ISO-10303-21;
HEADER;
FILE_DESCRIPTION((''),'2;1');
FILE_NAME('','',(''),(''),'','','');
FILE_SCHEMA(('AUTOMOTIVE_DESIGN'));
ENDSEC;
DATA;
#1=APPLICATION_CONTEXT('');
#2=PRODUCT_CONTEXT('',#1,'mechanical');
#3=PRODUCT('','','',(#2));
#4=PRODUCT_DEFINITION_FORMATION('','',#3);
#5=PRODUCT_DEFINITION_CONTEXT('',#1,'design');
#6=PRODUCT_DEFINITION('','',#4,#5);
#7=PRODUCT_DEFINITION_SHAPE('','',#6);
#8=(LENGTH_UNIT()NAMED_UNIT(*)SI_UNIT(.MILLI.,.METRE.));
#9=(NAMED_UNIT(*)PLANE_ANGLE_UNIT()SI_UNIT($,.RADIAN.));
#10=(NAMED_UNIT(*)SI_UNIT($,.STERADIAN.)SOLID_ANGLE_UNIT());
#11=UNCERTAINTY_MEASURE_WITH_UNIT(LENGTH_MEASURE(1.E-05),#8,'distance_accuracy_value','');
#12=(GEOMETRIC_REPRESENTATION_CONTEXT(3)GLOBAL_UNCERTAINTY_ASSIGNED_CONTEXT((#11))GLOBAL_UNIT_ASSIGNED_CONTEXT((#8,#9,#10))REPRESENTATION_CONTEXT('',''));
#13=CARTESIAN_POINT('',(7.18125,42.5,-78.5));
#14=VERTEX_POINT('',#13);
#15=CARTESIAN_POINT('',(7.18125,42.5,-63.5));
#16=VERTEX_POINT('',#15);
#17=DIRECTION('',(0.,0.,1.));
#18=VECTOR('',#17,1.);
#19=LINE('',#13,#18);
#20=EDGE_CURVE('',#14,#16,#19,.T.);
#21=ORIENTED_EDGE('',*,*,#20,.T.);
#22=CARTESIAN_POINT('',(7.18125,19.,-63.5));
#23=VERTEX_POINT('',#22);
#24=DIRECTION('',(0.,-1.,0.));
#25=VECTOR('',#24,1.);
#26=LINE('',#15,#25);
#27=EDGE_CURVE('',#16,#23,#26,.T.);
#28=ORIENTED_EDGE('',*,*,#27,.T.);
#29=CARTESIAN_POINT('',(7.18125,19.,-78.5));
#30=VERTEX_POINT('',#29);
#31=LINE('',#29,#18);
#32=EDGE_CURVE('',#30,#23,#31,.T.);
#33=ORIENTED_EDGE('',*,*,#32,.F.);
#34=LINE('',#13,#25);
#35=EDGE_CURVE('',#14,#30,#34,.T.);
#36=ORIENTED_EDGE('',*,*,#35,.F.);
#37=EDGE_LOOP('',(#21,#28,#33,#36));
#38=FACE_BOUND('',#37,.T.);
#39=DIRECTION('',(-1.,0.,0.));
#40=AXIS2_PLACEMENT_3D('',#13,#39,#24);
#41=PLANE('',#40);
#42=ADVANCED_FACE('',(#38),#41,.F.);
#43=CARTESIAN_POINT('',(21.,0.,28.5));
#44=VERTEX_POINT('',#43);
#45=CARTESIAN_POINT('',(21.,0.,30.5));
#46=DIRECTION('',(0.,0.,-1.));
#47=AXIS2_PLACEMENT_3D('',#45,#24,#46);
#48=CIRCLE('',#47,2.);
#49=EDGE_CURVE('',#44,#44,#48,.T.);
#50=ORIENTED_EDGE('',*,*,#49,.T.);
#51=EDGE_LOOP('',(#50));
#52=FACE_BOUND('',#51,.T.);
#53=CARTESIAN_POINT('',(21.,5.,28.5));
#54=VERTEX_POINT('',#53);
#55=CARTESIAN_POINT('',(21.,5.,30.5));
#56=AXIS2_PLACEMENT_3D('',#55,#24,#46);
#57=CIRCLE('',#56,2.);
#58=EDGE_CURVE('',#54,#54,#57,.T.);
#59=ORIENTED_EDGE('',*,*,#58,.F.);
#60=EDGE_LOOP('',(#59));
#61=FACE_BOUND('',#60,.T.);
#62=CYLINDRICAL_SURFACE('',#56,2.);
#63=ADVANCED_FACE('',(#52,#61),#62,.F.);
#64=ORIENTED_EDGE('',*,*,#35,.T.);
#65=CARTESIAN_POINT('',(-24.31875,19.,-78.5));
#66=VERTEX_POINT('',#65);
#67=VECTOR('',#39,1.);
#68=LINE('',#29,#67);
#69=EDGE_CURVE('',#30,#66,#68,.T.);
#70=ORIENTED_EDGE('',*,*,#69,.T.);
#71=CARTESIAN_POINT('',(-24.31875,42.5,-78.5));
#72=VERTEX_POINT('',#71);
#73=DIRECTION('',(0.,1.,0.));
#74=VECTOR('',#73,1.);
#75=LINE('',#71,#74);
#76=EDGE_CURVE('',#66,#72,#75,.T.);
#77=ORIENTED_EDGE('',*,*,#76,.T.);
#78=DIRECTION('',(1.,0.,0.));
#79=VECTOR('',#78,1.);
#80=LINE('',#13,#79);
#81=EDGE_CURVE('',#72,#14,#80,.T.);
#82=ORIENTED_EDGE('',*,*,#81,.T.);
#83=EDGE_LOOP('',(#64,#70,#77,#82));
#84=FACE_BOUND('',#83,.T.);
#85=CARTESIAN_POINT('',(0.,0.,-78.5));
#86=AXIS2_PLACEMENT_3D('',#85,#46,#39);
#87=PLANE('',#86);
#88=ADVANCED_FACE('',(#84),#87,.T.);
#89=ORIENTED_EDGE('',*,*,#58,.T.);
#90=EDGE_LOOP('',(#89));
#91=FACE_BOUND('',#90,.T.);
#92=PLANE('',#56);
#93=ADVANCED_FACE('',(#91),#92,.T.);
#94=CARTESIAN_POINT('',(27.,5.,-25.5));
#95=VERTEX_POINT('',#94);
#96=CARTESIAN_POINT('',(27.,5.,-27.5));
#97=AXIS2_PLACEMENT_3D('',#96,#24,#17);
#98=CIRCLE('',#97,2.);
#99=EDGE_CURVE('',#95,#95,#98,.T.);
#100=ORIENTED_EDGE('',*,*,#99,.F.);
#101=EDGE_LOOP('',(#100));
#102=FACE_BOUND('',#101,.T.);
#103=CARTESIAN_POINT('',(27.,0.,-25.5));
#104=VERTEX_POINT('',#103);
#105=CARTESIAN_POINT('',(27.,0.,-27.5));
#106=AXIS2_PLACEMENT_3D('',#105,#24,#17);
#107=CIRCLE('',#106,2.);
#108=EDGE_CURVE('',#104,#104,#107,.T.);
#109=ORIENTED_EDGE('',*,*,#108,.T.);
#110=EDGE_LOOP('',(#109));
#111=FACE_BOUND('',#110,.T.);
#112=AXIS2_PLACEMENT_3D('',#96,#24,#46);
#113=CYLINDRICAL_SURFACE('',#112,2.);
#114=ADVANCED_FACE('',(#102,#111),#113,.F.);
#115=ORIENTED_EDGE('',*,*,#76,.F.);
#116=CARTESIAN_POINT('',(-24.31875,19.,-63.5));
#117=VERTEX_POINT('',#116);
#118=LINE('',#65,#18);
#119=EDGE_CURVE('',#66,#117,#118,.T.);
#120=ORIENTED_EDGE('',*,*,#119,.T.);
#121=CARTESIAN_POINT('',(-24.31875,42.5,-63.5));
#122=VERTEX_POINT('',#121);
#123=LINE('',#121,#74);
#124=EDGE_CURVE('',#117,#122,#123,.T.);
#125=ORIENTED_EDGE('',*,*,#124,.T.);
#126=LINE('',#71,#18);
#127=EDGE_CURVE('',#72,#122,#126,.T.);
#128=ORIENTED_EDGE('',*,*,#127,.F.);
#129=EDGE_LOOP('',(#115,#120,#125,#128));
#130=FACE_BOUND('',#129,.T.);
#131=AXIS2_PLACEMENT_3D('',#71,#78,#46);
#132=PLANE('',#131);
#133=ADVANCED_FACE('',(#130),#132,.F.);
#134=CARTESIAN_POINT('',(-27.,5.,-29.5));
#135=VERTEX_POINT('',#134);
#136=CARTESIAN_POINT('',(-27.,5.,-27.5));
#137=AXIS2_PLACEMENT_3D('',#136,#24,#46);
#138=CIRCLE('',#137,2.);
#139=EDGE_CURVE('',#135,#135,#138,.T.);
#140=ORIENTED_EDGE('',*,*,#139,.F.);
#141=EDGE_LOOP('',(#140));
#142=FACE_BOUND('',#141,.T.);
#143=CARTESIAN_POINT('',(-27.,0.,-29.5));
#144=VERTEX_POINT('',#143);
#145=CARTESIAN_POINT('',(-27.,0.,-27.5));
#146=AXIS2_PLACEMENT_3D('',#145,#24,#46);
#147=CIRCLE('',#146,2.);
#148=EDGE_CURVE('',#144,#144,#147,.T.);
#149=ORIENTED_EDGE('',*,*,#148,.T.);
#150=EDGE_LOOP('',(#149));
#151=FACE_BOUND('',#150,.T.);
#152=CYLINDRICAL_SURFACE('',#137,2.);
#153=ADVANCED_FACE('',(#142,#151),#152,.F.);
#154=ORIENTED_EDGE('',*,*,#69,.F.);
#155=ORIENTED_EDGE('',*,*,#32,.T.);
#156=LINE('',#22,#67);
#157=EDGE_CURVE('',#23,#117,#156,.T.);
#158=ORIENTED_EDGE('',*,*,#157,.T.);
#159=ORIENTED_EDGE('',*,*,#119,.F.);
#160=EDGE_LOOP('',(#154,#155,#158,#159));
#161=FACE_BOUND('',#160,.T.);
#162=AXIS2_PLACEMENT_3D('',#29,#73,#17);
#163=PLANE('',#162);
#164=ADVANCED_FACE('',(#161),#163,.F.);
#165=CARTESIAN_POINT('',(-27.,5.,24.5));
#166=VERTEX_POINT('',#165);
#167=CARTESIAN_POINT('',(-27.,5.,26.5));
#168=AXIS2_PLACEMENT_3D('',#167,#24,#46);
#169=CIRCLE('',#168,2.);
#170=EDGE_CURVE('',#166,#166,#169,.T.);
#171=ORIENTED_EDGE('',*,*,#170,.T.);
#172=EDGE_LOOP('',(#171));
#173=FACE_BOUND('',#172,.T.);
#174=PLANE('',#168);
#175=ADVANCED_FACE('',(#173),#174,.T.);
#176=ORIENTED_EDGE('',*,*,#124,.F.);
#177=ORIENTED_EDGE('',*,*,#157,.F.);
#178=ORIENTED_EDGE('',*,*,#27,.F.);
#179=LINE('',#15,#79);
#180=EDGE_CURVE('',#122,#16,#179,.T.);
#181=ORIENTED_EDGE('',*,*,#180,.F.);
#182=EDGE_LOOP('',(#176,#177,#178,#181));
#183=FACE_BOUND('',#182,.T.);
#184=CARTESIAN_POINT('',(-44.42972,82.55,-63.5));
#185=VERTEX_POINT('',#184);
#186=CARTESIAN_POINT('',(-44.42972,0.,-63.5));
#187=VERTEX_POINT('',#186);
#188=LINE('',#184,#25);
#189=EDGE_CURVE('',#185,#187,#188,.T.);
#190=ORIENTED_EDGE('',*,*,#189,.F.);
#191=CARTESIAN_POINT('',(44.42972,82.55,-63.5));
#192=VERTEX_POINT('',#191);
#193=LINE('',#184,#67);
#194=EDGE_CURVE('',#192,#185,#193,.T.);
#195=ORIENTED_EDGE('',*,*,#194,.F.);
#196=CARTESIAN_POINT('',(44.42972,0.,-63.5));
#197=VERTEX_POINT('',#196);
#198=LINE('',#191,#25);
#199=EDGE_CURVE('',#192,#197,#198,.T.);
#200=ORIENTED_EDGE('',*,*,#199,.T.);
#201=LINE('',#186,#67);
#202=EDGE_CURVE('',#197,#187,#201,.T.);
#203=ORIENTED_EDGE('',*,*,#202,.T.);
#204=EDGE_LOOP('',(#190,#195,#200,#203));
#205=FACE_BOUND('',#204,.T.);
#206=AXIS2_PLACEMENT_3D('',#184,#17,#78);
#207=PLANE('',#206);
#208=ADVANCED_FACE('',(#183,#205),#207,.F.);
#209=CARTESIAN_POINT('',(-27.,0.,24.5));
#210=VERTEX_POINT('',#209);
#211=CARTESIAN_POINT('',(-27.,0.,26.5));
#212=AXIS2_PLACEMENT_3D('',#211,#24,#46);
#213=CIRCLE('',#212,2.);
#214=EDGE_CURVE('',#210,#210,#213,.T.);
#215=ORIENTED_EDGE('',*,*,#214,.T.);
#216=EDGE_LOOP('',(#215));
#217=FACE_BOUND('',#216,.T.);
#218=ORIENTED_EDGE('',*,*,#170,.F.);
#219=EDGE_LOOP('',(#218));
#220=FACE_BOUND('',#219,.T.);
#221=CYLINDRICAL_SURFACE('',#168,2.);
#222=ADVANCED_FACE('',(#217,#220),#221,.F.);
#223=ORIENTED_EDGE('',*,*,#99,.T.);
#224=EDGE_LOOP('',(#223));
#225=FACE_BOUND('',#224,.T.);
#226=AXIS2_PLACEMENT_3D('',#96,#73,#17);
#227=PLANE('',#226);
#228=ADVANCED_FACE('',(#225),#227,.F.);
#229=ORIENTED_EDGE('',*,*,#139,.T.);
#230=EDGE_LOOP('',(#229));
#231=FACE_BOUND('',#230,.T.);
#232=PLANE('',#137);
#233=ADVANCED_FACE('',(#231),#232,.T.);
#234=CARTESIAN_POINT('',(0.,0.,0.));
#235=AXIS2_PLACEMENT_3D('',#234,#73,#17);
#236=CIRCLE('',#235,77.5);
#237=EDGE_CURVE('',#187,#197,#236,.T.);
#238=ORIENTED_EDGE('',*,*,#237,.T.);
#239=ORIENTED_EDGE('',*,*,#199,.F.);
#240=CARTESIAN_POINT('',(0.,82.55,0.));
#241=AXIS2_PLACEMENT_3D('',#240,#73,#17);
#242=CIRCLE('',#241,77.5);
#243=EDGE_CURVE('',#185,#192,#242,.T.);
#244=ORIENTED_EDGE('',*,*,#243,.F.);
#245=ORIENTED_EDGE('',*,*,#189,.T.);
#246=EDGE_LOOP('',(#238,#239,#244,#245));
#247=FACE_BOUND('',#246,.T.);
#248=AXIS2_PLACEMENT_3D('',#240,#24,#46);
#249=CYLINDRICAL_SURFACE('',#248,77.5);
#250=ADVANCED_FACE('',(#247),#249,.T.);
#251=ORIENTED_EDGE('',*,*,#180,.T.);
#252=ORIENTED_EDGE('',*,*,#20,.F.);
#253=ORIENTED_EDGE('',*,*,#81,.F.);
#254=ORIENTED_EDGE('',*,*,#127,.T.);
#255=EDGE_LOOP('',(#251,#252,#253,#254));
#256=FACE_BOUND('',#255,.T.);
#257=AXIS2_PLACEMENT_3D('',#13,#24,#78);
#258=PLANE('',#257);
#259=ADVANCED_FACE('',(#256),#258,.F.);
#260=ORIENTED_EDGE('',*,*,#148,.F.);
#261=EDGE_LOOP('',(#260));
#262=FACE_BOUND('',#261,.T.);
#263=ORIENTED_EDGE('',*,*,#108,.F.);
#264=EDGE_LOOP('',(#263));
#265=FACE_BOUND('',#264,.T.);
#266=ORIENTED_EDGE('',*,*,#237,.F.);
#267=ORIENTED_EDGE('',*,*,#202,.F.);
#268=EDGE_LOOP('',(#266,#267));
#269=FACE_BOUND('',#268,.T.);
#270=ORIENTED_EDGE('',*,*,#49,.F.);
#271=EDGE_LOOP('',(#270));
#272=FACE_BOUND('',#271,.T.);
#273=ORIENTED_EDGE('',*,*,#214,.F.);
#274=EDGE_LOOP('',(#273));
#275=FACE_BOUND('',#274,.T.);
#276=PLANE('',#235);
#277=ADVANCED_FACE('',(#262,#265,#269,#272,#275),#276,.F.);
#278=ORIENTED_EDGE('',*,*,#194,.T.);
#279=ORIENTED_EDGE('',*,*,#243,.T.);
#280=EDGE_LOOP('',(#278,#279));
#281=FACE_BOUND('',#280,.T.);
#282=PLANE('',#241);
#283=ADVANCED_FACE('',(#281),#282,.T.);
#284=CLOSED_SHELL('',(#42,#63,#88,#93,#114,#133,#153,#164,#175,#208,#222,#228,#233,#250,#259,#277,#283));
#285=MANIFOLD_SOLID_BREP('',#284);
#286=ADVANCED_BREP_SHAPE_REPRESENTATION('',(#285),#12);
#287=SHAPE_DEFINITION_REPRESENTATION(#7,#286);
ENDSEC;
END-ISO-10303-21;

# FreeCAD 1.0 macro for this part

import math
import FreeCAD as App
import Part
import Sketcher

V = App.Vector

doc = App.newDocument("Part")
body = doc.addObject("PartDesign::Body", "Body")

# Sketch on XZ plane
sketch1 = body.newObject("Sketcher::SketchObject", "Sketch")
sketch1.AttachmentSupport = (doc.getObject("XZ_Plane"), [""])
sketch1.MapMode = "FlatFace"
sketch1.addGeometry(Part.LineSegment(V(44, -64, 0), V(-44, -64, 0)), False)
sketch1.addGeometry(Part.ArcOfCircle(Part.Circle(V(0, 0, 0), V(0, 0, 1), 78), math.radians(-55), math.radians(235)), False)
sketch1.addConstraint(Sketcher.Constraint("Coincident", 0, 1, 1, 1))
sketch1.addConstraint(Sketcher.Constraint("Coincident", 1, 2, 0, 2))
sketch1.addConstraint(Sketcher.Constraint("Horizontal", 0))
sketch1.addConstraint(Sketcher.Constraint("Coincident", 1, 3, -1, 1))
sketch1.addConstraint(Sketcher.Constraint("Radius", 1, 77.5))
sketch1.addConstraint(Sketcher.Constraint("DistanceY", 0, 1, -1, 1, 63.5))
pad1 = body.newObject("PartDesign::Pad", "Pad")
pad1.Profile = sketch1
pad1.Length = 82.55
pad1.Reversed = True

# Sketch on XZ plane
sketch2 = body.newObject("Sketcher::SketchObject", "Sketch001")
sketch2.AttachmentSupport = (doc.getObject("XZ_Plane"), [""])
sketch2.MapMode = "FlatFace"
sketch2.addGeometry(Part.Circle(V(-27, -27.5, 0), V(0, 0, 1), 2), False)
sketch2.addGeometry(Part.Circle(V(-27, 26.5, 0), V(0, 0, 1), 2), False)
sketch2.addGeometry(Part.Circle(V(21, 30.5, 0), V(0, 0, 1), 2), False)
sketch2.addGeometry(Part.Circle(V(27, -27.5, 0), V(0, 0, 1), 2), False)
sketch2.addConstraint(Sketcher.Constraint("Equal", 0, 1))
sketch2.addConstraint(Sketcher.Constraint("Equal", 1, 2))
sketch2.addConstraint(Sketcher.Constraint("Equal", 2, 3))
sketch2.addConstraint(Sketcher.Constraint("Symmetric", 0, 3, 3, 3, -2))
sketch2.addConstraint(Sketcher.Constraint("Vertical", 0, 3, 1, 3))
sketch2.addConstraint(Sketcher.Constraint("Diameter", 0, 4.0))
sketch2.addConstraint(Sketcher.Constraint("DistanceX", 0, 3, -1, 1, 27.0))
sketch2.addConstraint(Sketcher.Constraint("DistanceX", -1, 1, 2, 3, 21.0))
sketch2.addConstraint(Sketcher.Constraint("DistanceY", 0, 3, 1, 3, 54.0))
sketch2.addConstraint(Sketcher.Constraint("DistanceY", 1, 3, 2, 3, 4.0))
sketch2.addConstraint(Sketcher.Constraint("DistanceY", 0, 3, -1, 1, 27.5))
pocket1 = body.newObject("PartDesign::Pocket", "Pocket")
pocket1.Profile = sketch2
pocket1.Length = 5

# Sketch on XY plane
sketch3 = body.newObject("Sketcher::SketchObject", "Sketch002")
sketch3.AttachmentSupport = (doc.getObject("XY_Plane"), [""])
sketch3.MapMode = "FlatFace"
sketch3.AttachmentOffset = App.Placement(V(0, 0, -63.5), App.Rotation())
sketch3.addGeometry(Part.LineSegment(V(7, 42, 0), V(7, 19, 0)), False)
sketch3.addGeometry(Part.LineSegment(V(7, 19, 0), V(-24, 19, 0)), False)
sketch3.addGeometry(Part.LineSegment(V(-24, 19, 0), V(-24, 42, 0)), False)
sketch3.addGeometry(Part.LineSegment(V(-24, 42, 0), V(7, 42, 0)), False)
sketch3.addConstraint(Sketcher.Constraint("Coincident", 0, 2, 1, 1))
sketch3.addConstraint(Sketcher.Constraint("Coincident", 1, 2, 2, 1))
sketch3.addConstraint(Sketcher.Constraint("Coincident", 2, 2, 3, 1))
sketch3.addConstraint(Sketcher.Constraint("Coincident", 3, 2, 0, 1))
sketch3.addConstraint(Sketcher.Constraint("Vertical", 0))
sketch3.addConstraint(Sketcher.Constraint("Horizontal", 1))
sketch3.addConstraint(Sketcher.Constraint("Vertical", 2))
sketch3.addConstraint(Sketcher.Constraint("Horizontal", 3))
sketch3.addConstraint(Sketcher.Constraint("DistanceX", 1, 2, 1, 1, 31.5))
sketch3.addConstraint(Sketcher.Constraint("DistanceY", 0, 2, 0, 1, 23.5))
sketch3.addConstraint(Sketcher.Constraint("DistanceY", -1, 1, 0, 2, 19.0))
sketch3.addConstraint(Sketcher.Constraint("DistanceX", -1, 1, 0, 2, 7.18125))
pad2 = body.newObject("PartDesign::Pad", "Pad001")
pad2.Profile = sketch3
pad2.Length = 15
pad2.Reversed = True

doc.recompute()
